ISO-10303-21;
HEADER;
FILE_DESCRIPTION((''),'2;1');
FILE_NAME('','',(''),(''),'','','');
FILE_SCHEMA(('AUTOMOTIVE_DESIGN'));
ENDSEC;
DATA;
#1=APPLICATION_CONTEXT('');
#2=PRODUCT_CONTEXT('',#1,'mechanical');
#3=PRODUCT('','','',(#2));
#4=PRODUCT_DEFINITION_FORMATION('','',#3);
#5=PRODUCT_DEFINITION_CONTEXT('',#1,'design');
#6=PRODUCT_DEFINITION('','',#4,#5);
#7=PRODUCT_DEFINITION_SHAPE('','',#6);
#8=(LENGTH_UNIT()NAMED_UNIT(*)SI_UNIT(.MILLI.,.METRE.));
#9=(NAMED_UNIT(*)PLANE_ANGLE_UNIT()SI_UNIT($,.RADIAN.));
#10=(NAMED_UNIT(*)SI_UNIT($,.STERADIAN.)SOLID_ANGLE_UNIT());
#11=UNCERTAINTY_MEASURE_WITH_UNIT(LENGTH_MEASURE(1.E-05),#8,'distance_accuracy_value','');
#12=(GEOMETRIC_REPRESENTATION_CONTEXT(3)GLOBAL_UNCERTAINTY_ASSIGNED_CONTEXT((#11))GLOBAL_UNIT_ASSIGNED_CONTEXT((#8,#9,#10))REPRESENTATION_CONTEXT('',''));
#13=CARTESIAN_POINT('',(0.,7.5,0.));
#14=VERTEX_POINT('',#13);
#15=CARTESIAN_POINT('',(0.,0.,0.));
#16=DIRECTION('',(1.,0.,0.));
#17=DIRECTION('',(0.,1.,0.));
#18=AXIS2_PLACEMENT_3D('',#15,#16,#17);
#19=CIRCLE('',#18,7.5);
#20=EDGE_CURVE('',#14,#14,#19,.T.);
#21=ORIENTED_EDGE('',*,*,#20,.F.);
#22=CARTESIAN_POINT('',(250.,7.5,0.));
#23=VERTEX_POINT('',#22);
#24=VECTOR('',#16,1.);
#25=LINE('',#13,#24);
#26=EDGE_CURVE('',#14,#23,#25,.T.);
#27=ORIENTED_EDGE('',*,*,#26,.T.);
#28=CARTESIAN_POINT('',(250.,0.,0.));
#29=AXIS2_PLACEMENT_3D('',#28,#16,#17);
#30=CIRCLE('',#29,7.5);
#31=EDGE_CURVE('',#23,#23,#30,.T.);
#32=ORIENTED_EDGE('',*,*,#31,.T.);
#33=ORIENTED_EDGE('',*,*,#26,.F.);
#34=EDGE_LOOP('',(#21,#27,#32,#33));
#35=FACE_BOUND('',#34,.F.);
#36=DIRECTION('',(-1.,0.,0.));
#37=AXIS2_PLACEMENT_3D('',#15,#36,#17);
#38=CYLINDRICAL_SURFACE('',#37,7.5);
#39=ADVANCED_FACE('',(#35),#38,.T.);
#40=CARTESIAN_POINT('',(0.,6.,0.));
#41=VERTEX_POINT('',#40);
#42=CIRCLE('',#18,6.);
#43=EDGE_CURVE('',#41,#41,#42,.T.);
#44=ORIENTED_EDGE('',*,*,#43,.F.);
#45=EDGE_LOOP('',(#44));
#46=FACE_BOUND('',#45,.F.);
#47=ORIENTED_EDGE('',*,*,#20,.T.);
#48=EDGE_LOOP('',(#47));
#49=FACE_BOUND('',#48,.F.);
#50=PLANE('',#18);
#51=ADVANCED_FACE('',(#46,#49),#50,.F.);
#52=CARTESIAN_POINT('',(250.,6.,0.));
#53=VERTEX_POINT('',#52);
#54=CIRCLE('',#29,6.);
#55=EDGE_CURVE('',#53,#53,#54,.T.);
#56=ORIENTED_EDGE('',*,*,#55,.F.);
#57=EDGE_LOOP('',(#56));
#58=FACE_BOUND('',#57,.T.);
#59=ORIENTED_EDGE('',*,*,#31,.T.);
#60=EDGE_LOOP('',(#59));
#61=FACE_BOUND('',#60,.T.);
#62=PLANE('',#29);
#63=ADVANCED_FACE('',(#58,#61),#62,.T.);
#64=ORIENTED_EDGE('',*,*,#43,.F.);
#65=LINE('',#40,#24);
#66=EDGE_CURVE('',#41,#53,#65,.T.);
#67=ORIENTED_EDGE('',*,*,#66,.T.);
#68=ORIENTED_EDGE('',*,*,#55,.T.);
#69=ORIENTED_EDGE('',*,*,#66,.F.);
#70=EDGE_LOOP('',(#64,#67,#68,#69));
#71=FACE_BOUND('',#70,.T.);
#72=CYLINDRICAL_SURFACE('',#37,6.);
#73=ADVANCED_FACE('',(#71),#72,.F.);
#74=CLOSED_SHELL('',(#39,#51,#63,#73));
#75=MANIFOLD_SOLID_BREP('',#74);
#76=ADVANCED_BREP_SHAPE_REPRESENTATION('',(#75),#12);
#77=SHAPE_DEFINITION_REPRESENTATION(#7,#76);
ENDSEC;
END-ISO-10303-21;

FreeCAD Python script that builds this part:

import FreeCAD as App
import Part
import Sketcher
from FreeCAD import Vector
Q = App.Units.Quantity

doc = App.newDocument("Part")
body = doc.addObject("PartDesign::Body", "Body")

# Sketch on YZ plane
sketch1 = doc.addObject("Sketcher::SketchObject", "Sketch")
body.addObject(sketch1)
sketch1.AttachmentSupport = (doc.YZ_Plane, [""])
sketch1.MapMode = "FlatFace"
sketch1.addGeometry([
    Part.Circle(Vector(0, 0, 0), Vector(0, 0, 1), 8),
    Part.Circle(Vector(0, 0, 0), Vector(0, 0, 1), 6),
], False)
sketch1.addConstraint([
    Sketcher.Constraint("Coincident", 0, 3, -1, 1),
    Sketcher.Constraint("Coincident", 1, 3, -1, 1),
    Sketcher.Constraint("Diameter", 0, Q("15 mm")),
    Sketcher.Constraint("Diameter", 1, Q("12 mm")),
])
pad1 = doc.addObject("PartDesign::Pad", "Pad")
body.addObject(pad1)
pad1.Profile = sketch1
pad1.Length = 250

doc.recompute()
